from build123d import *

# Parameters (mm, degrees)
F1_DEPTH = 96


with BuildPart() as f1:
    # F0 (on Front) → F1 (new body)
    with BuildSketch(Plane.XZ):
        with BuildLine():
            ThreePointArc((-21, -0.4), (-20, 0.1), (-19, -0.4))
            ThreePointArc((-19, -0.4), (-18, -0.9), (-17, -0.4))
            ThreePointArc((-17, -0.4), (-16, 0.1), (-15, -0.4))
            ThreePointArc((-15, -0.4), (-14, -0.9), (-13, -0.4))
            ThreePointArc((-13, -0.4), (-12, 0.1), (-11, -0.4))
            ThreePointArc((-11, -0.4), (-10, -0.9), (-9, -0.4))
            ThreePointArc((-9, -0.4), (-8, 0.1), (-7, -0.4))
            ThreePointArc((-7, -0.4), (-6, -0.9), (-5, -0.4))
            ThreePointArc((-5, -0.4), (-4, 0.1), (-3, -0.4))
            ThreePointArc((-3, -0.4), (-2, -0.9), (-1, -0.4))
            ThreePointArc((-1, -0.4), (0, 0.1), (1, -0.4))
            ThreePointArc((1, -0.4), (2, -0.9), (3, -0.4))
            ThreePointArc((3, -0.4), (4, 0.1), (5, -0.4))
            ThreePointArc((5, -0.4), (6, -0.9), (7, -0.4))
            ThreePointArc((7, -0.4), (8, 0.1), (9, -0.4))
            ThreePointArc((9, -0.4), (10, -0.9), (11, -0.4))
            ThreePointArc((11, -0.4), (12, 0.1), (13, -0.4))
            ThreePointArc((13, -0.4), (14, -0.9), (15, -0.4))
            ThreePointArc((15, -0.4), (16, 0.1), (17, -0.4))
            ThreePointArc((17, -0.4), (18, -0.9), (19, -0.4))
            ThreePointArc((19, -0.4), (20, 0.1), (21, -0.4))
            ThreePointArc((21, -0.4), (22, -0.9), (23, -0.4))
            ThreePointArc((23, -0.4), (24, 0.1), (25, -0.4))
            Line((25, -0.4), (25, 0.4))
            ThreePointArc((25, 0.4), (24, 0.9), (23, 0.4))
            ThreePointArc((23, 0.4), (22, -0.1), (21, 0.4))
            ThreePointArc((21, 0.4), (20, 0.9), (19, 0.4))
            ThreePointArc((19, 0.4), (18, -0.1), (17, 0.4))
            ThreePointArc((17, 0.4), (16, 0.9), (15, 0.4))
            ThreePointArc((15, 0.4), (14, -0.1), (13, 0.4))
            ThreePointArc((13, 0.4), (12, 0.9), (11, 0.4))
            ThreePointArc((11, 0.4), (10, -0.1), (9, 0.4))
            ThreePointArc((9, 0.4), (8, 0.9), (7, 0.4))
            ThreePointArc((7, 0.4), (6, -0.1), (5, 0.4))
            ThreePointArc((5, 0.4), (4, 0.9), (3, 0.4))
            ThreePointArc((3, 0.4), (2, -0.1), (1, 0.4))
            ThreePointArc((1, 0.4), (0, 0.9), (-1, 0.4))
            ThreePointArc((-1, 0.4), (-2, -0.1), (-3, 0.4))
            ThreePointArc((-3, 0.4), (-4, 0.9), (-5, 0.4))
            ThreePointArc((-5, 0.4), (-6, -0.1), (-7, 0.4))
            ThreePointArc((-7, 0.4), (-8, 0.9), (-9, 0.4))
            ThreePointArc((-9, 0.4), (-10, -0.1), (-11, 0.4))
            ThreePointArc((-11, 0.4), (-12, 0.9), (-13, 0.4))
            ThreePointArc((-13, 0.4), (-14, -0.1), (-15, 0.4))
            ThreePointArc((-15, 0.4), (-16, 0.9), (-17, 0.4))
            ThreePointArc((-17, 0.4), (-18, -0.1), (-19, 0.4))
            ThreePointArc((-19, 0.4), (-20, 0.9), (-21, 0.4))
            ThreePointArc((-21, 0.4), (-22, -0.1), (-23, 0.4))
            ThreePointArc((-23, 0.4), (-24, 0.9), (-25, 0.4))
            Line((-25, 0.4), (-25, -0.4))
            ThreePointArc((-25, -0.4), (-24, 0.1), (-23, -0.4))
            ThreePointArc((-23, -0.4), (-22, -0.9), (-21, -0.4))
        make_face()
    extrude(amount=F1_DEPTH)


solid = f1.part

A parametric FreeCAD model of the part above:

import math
import FreeCAD as App
import Part
import Sketcher

doc = App.newDocument("Part")
body = doc.addObject("PartDesign::Body", "Body")

sketch1 = doc.addObject("Sketcher::SketchObject", "Sketch")
body.addObject(sketch1)
sketch1.AttachmentSupport = (doc.XZ_Plane, [""])
sketch1.MapMode = "FlatFace"
sketch1.addGeometry([
    Part.ArcOfCircle(Part.Circle(App.Vector(-20, -1.1, 0), App.Vector(0, 0, 1), 1.2), math.radians(37), math.radians(143)),
    Part.ArcOfCircle(Part.Circle(App.Vector(-18, 0.3, 0), App.Vector(0, 0, 1), 1.2), math.radians(-143), math.radians(-37)),
    Part.ArcOfCircle(Part.Circle(App.Vector(-16, -1.1, 0), App.Vector(0, 0, 1), 1.2), math.radians(37), math.radians(143)),
    Part.ArcOfCircle(Part.Circle(App.Vector(-14, 0.3, 0), App.Vector(0, 0, 1), 1.2), math.radians(-143), math.radians(-37)),
    Part.ArcOfCircle(Part.Circle(App.Vector(-12, -1.1, 0), App.Vector(0, 0, 1), 1.2), math.radians(37), math.radians(143)),
    Part.ArcOfCircle(Part.Circle(App.Vector(-10, 0.3, 0), App.Vector(0, 0, 1), 1.2), math.radians(-143), math.radians(-37)),
    Part.ArcOfCircle(Part.Circle(App.Vector(-8, -1.1, 0), App.Vector(0, 0, 1), 1.2), math.radians(37), math.radians(143)),
    Part.ArcOfCircle(Part.Circle(App.Vector(-6, 0.3, 0), App.Vector(0, 0, 1), 1.2), math.radians(-143), math.radians(-37)),
    Part.ArcOfCircle(Part.Circle(App.Vector(-4, -1.1, 0), App.Vector(0, 0, 1), 1.2), math.radians(37), math.radians(143)),
    Part.ArcOfCircle(Part.Circle(App.Vector(-2, 0.3, 0), App.Vector(0, 0, 1), 1.2), math.radians(-143), math.radians(-37)),
    Part.ArcOfCircle(Part.Circle(App.Vector(0, -1.1, 0), App.Vector(0, 0, 1), 1.2), math.radians(37), math.radians(143)),
    Part.ArcOfCircle(Part.Circle(App.Vector(2, 0.3, 0), App.Vector(0, 0, 1), 1.2), math.radians(-143), math.radians(-37)),
    Part.ArcOfCircle(Part.Circle(App.Vector(4, -1.1, 0), App.Vector(0, 0, 1), 1.2), math.radians(37), math.radians(143)),
    Part.ArcOfCircle(Part.Circle(App.Vector(6, 0.3, 0), App.Vector(0, 0, 1), 1.2), math.radians(-143), math.radians(-37)),
    Part.ArcOfCircle(Part.Circle(App.Vector(8, -1.1, 0), App.Vector(0, 0, 1), 1.2), math.radians(37), math.radians(143)),
    Part.ArcOfCircle(Part.Circle(App.Vector(10, 0.3, 0), App.Vector(0, 0, 1), 1.2), math.radians(-143), math.radians(-37)),
    Part.ArcOfCircle(Part.Circle(App.Vector(12, -1.1, 0), App.Vector(0, 0, 1), 1.2), math.radians(37), math.radians(143)),
    Part.ArcOfCircle(Part.Circle(App.Vector(14, 0.3, 0), App.Vector(0, 0, 1), 1.2), math.radians(-143), math.radians(-37)),
    Part.ArcOfCircle(Part.Circle(App.Vector(16, -1.1, 0), App.Vector(0, 0, 1), 1.2), math.radians(37), math.radians(143)),
    Part.ArcOfCircle(Part.Circle(App.Vector(18, 0.3, 0), App.Vector(0, 0, 1), 1.2), math.radians(-143), math.radians(-37)),
    Part.ArcOfCircle(Part.Circle(App.Vector(20, -1.1, 0), App.Vector(0, 0, 1), 1.2), math.radians(37), math.radians(143)),
    Part.ArcOfCircle(Part.Circle(App.Vector(22, 0.3, 0), App.Vector(0, 0, 1), 1.2), math.radians(-143), math.radians(-37)),
    Part.ArcOfCircle(Part.Circle(App.Vector(24, -1.1, 0), App.Vector(0, 0, 1), 1.2), math.radians(37), math.radians(143)),
    Part.LineSegment(App.Vector(25, -0.4, 0), App.Vector(25, 0.4, 0)),
    Part.ArcOfCircle(Part.Circle(App.Vector(24, -0.3, 0), App.Vector(0, 0, 1), 1.2), math.radians(37), math.radians(143)),
    Part.ArcOfCircle(Part.Circle(App.Vector(22, 1.1, 0), App.Vector(0, 0, 1), 1.2), math.radians(-143), math.radians(-37)),
    Part.ArcOfCircle(Part.Circle(App.Vector(20, -0.3, 0), App.Vector(0, 0, 1), 1.2), math.radians(37), math.radians(143)),
    Part.ArcOfCircle(Part.Circle(App.Vector(18, 1.1, 0), App.Vector(0, 0, 1), 1.2), math.radians(-143), math.radians(-37)),
    Part.ArcOfCircle(Part.Circle(App.Vector(16, -0.3, 0), App.Vector(0, 0, 1), 1.2), math.radians(37), math.radians(143)),
    Part.ArcOfCircle(Part.Circle(App.Vector(14, 1.1, 0), App.Vector(0, 0, 1), 1.2), math.radians(-143), math.radians(-37)),
    Part.ArcOfCircle(Part.Circle(App.Vector(12, -0.3, 0), App.Vector(0, 0, 1), 1.2), math.radians(37), math.radians(143)),
    Part.ArcOfCircle(Part.Circle(App.Vector(10, 1.1, 0), App.Vector(0, 0, 1), 1.2), math.radians(-143), math.radians(-37)),
    Part.ArcOfCircle(Part.Circle(App.Vector(8, -0.3, 0), App.Vector(0, 0, 1), 1.2), math.radians(37), math.radians(143)),
    Part.ArcOfCircle(Part.Circle(App.Vector(6, 1.1, 0), App.Vector(0, 0, 1), 1.2), math.radians(-143), math.radians(-37)),
    Part.ArcOfCircle(Part.Circle(App.Vector(4, -0.3, 0), App.Vector(0, 0, 1), 1.2), math.radians(37), math.radians(143)),
    Part.ArcOfCircle(Part.Circle(App.Vector(2, 1.1, 0), App.Vector(0, 0, 1), 1.2), math.radians(-143), math.radians(-37)),
    Part.ArcOfCircle(Part.Circle(App.Vector(0, -0.3, 0), App.Vector(0, 0, 1), 1.2), math.radians(37), math.radians(143)),
    Part.ArcOfCircle(Part.Circle(App.Vector(-2, 1.1, 0), App.Vector(0, 0, 1), 1.2), math.radians(-143), math.radians(-37)),
    Part.ArcOfCircle(Part.Circle(App.Vector(-4, -0.3, 0), App.Vector(0, 0, 1), 1.2), math.radians(37), math.radians(143)),
    Part.ArcOfCircle(Part.Circle(App.Vector(-6, 1.1, 0), App.Vector(0, 0, 1), 1.2), math.radians(-143), math.radians(-37)),
    Part.ArcOfCircle(Part.Circle(App.Vector(-8, -0.3, 0), App.Vector(0, 0, 1), 1.2), math.radians(37), math.radians(143)),
    Part.ArcOfCircle(Part.Circle(App.Vector(-10, 1.1, 0), App.Vector(0, 0, 1), 1.2), math.radians(-143), math.radians(-37)),
    Part.ArcOfCircle(Part.Circle(App.Vector(-12, -0.3, 0), App.Vector(0, 0, 1), 1.2), math.radians(37), math.radians(143)),
    Part.ArcOfCircle(Part.Circle(App.Vector(-14, 1.1, 0), App.Vector(0, 0, 1), 1.2), math.radians(-143), math.radians(-37)),
    Part.ArcOfCircle(Part.Circle(App.Vector(-16, -0.3, 0), App.Vector(0, 0, 1), 1.2), math.radians(37), math.radians(143)),
    Part.ArcOfCircle(Part.Circle(App.Vector(-18, 1.1, 0), App.Vector(0, 0, 1), 1.2), math.radians(-143), math.radians(-37)),
    Part.ArcOfCircle(Part.Circle(App.Vector(-20, -0.3, 0), App.Vector(0, 0, 1), 1.2), math.radians(37), math.radians(143)),
    Part.ArcOfCircle(Part.Circle(App.Vector(-22, 1.1, 0), App.Vector(0, 0, 1), 1.2), math.radians(-143), math.radians(-37)),
    Part.ArcOfCircle(Part.Circle(App.Vector(-24, -0.3, 0), App.Vector(0, 0, 1), 1.2), math.radians(37), math.radians(143)),
    Part.LineSegment(App.Vector(-25, 0.4, 0), App.Vector(-25, -0.4, 0)),
    Part.ArcOfCircle(Part.Circle(App.Vector(-24, -1.1, 0), App.Vector(0, 0, 1), 1.2), math.radians(37), math.radians(143)),
    Part.ArcOfCircle(Part.Circle(App.Vector(-22, 0.3, 0), App.Vector(0, 0, 1), 1.2), math.radians(-143), math.radians(-37)),
], False)
sketch1.addConstraint([
    Sketcher.Constraint("Tangent", 0, 1, 1, 1),
    Sketcher.Constraint("Tangent", 1, 2, 2, 2),
    Sketcher.Constraint("Tangent", 2, 1, 3, 1),
    Sketcher.Constraint("Tangent", 3, 2, 4, 2),
    Sketcher.Constraint("Tangent", 4, 1, 5, 1),
    Sketcher.Constraint("Tangent", 5, 2, 6, 2),
    Sketcher.Constraint("Tangent", 6, 1, 7, 1),
    Sketcher.Constraint("Tangent", 7, 2, 8, 2),
    Sketcher.Constraint("Tangent", 8, 1, 9, 1),
    Sketcher.Constraint("Tangent", 9, 2, 10, 2),
    Sketcher.Constraint("Tangent", 10, 1, 11, 1),
    Sketcher.Constraint("Tangent", 11, 2, 12, 2),
    Sketcher.Constraint("Tangent", 12, 1, 13, 1),
    Sketcher.Constraint("Tangent", 13, 2, 14, 2),
    Sketcher.Constraint("Tangent", 14, 1, 15, 1),
    Sketcher.Constraint("Tangent", 15, 2, 16, 2),
    Sketcher.Constraint("Tangent", 16, 1, 17, 1),
    Sketcher.Constraint("Tangent", 17, 2, 18, 2),
    Sketcher.Constraint("Tangent", 18, 1, 19, 1),
    Sketcher.Constraint("Tangent", 19, 2, 20, 2),
    Sketcher.Constraint("Tangent", 20, 1, 21, 1),
    Sketcher.Constraint("Tangent", 21, 2, 22, 2),
    Sketcher.Constraint("Coincident", 22, 1, 23, 1),
    Sketcher.Constraint("Coincident", 23, 2, 24, 1),
    Sketcher.Constraint("Tangent", 24, 2, 25, 2),
    Sketcher.Constraint("Tangent", 25, 1, 26, 1),
    Sketcher.Constraint("Tangent", 26, 2, 27, 2),
    Sketcher.Constraint("Tangent", 27, 1, 28, 1),
    Sketcher.Constraint("Tangent", 28, 2, 29, 2),
    Sketcher.Constraint("Tangent", 29, 1, 30, 1),
    Sketcher.Constraint("Tangent", 30, 2, 31, 2),
    Sketcher.Constraint("Tangent", 31, 1, 32, 1),
    Sketcher.Constraint("Tangent", 32, 2, 33, 2),
    Sketcher.Constraint("Tangent", 33, 1, 34, 1),
    Sketcher.Constraint("Tangent", 34, 2, 35, 2),
    Sketcher.Constraint("Tangent", 35, 1, 36, 1),
    Sketcher.Constraint("Tangent", 36, 2, 37, 2),
    Sketcher.Constraint("Tangent", 37, 1, 38, 1),
    Sketcher.Constraint("Tangent", 38, 2, 39, 2),
    Sketcher.Constraint("Tangent", 39, 1, 40, 1),
    Sketcher.Constraint("Tangent", 40, 2, 41, 2),
    Sketcher.Constraint("Tangent", 41, 1, 42, 1),
    Sketcher.Constraint("Tangent", 42, 2, 43, 2),
    Sketcher.Constraint("Tangent", 43, 1, 44, 1),
    Sketcher.Constraint("Tangent", 44, 2, 45, 2),
    Sketcher.Constraint("Tangent", 45, 1, 46, 1),
    Sketcher.Constraint("Tangent", 46, 2, 47, 2),
    Sketcher.Constraint("Tangent", 47, 1, 48, 1),
    Sketcher.Constraint("Coincident", 48, 2, 49, 1),
    Sketcher.Constraint("Coincident", 49, 2, 50, 2),
    Sketcher.Constraint("Tangent", 50, 1, 51, 1),
    Sketcher.Constraint("Tangent", 51, 2, 0, 2),
    Sketcher.Constraint("Vertical", 23),
    Sketcher.Constraint("Vertical", 49),
    Sketcher.Constraint("Equal", 0, 1),
    Sketcher.Constraint("Equal", 1, 2),
    Sketcher.Constraint("Equal", 2, 3),
    Sketcher.Constraint("Equal", 3, 4),
    Sketcher.Constraint("Equal", 4, 5),
    Sketcher.Constraint("Equal", 5, 6),
    Sketcher.Constraint("Equal", 6, 7),
    Sketcher.Constraint("Equal", 7, 8),
    Sketcher.Constraint("Equal", 8, 9),
    Sketcher.Constraint("Equal", 9, 10),
    Sketcher.Constraint("Equal", 10, 11),
    Sketcher.Constraint("Equal", 11, 12),
    Sketcher.Constraint("Equal", 12, 13),
    Sketcher.Constraint("Equal", 13, 14),
    Sketcher.Constraint("Equal", 14, 15),
    Sketcher.Constraint("Equal", 15, 16),
    Sketcher.Constraint("Equal", 16, 17),
    Sketcher.Constraint("Equal", 17, 18),
    Sketcher.Constraint("Equal", 18, 19),
    Sketcher.Constraint("Equal", 19, 20),
    Sketcher.Constraint("Equal", 20, 21),
    Sketcher.Constraint("Equal", 21, 22),
    Sketcher.Constraint("Equal", 22, 24),
    Sketcher.Constraint("Equal", 24, 25),
    Sketcher.Constraint("Equal", 25, 26),
    Sketcher.Constraint("Equal", 26, 27),
    Sketcher.Constraint("Equal", 27, 28),
    Sketcher.Constraint("Equal", 28, 29),
    Sketcher.Constraint("Equal", 29, 30),
    Sketcher.Constraint("Equal", 30, 31),
    Sketcher.Constraint("Equal", 31, 32),
    Sketcher.Constraint("Equal", 32, 33),
    Sketcher.Constraint("Equal", 33, 34),
    Sketcher.Constraint("Equal", 34, 35),
    Sketcher.Constraint("Equal", 35, 36),
    Sketcher.Constraint("Equal", 36, 37),
    Sketcher.Constraint("Equal", 37, 38),
    Sketcher.Constraint("Equal", 38, 39),
    Sketcher.Constraint("Equal", 39, 40),
    Sketcher.Constraint("Equal", 40, 41),
    Sketcher.Constraint("Equal", 41, 42),
    Sketcher.Constraint("Equal", 42, 43),
    Sketcher.Constraint("Equal", 43, 44),
    Sketcher.Constraint("Equal", 44, 45),
    Sketcher.Constraint("Equal", 45, 46),
    Sketcher.Constraint("Equal", 46, 47),
    Sketcher.Constraint("Equal", 47, 48),
    Sketcher.Constraint("Equal", 48, 50),
    Sketcher.Constraint("Equal", 50, 51),
    Sketcher.Constraint("Symmetric", 0, 1, 26, 2, -1, 1),
    Sketcher.Constraint("Symmetric", 1, 2, 27, 1, -1, 1),
    Sketcher.Constraint("Symmetric", 2, 1, 28, 2, -1, 1),
    Sketcher.Constraint("Symmetric", 3, 2, 29, 1, -1, 1),
    Sketcher.Constraint("Symmetric", 4, 1, 30, 2, -1, 1),
    Sketcher.Constraint("Symmetric", 5, 2, 31, 1, -1, 1),
    Sketcher.Constraint("Symmetric", 6, 1, 32, 2, -1, 1),
    Sketcher.Constraint("Symmetric", 7, 2, 33, 1, -1, 1),
    Sketcher.Constraint("Symmetric", 8, 1, 34, 2, -1, 1),
    Sketcher.Constraint("Symmetric", 9, 2, 35, 1, -1, 1),
    Sketcher.Constraint("Symmetric", 10, 1, 36, 2, -1, 1),
    Sketcher.Constraint("Symmetric", 11, 2, 37, 1, -1, 1),
    Sketcher.Constraint("Symmetric", 12, 1, 38, 2, -1, 1),
    Sketcher.Constraint("Symmetric", 13, 2, 39, 1, -1, 1),
    Sketcher.Constraint("Symmetric", 14, 1, 40, 2, -1, 1),
    Sketcher.Constraint("Symmetric", 15, 2, 41, 1, -1, 1),
    Sketcher.Constraint("Symmetric", 16, 1, 42, 2, -1, 1),
    Sketcher.Constraint("Symmetric", 17, 2, 43, 1, -1, 1),
    Sketcher.Constraint("Symmetric", 18, 1, 44, 2, -1, 1),
    Sketcher.Constraint("Symmetric", 19, 2, 45, 1, -1, 1),
    Sketcher.Constraint("Symmetric", 20, 1, 46, 2, -1, 1),
    Sketcher.Constraint("Symmetric", 21, 2, 47, 1, -1, 1),
    Sketcher.Constraint("Symmetric", 22, 1, 48, 2, -1, 1),
    Sketcher.Constraint("Symmetric", 24, 2, 50, 1, -1, 1),
    Sketcher.Constraint("Symmetric", 25, 1, 51, 2, -1, 1),
    Sketcher.Constraint("Symmetric", 9, 3, 11, 3, -2),
    Sketcher.Constraint("Radius", 0, 1.25),
    Sketcher.Constraint("DistanceY", 23, 1, 23, 2, 0.8),
    Sketcher.Constraint("DistanceX", 0, 3, -1, 1, 20.0),
])
pad1 = doc.addObject("PartDesign::Pad", "Pad")
body.addObject(pad1)
pad1.Profile = sketch1
pad1.Length = 96

doc.recompute()
